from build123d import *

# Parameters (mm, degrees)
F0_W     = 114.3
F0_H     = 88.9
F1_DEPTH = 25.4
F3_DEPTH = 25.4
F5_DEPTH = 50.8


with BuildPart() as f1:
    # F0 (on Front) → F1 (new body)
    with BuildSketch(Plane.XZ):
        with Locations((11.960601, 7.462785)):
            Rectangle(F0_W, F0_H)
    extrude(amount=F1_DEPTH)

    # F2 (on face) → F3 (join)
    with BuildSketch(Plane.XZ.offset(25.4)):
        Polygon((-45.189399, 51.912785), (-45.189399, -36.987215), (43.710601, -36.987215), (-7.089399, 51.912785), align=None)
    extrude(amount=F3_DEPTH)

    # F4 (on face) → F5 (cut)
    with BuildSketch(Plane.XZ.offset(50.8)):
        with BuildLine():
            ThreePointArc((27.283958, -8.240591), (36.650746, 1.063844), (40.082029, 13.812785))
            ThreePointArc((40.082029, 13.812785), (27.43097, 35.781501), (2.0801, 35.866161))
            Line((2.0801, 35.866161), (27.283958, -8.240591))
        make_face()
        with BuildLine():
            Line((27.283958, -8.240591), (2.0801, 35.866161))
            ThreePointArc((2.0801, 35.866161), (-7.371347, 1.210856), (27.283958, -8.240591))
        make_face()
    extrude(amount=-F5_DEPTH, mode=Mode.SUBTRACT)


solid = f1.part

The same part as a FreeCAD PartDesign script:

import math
import FreeCAD as App
import Part
import Sketcher
Q = App.Units.Quantity


def add_polygon(sketch, points):
    """Adds a closed chain of lines whose ends are joined by coincident constraints."""
    first, n = sketch.GeometryCount, len(points)
    for a, b in zip(points, points[1:] + points[:1]):
        sketch.addGeometry(Part.LineSegment(App.Vector(*a, 0), App.Vector(*b, 0)), False)
    for i in range(n):
        sketch.addConstraint(Sketcher.Constraint("Coincident", first + i, 2, first + (i + 1) % n, 1))

doc = App.newDocument("Part")
body = doc.addObject("PartDesign::Body", "Body")

# Sketch on XZ plane
sketch1 = doc.addObject("Sketcher::SketchObject", "Sketch")
body.addObject(sketch1)
sketch1.AttachmentSupport = (doc.XZ_Plane, [""])
sketch1.MapMode = "FlatFace"
add_polygon(sketch1, [(-45, 52), (-45, -37), (69, -37), (69, 52)])  # lines 0-3
sketch1.addConstraint([
    Sketcher.Constraint("Vertical", 0),
    Sketcher.Constraint("Horizontal", 1),
    Sketcher.Constraint("Vertical", 2),
    Sketcher.Constraint("Horizontal", 3),
    Sketcher.Constraint("DistanceX", 1, 1, 1, 2, Q("4.5 in")),
    Sketcher.Constraint("DistanceY", 0, 2, 0, 1, Q("3.5 in")),
    Sketcher.Constraint("DistanceX", 0, 2, -1, 1, 45.189399),
    Sketcher.Constraint("DistanceY", 0, 2, -1, 1, 36.987215),
])
pad1 = doc.addObject("PartDesign::Pad", "Pad")
body.addObject(pad1)
pad1.Profile = sketch1
pad1.Length = Q("1 in")

# Sketch on XZ plane
sketch2 = doc.addObject("Sketcher::SketchObject", "Sketch001")
body.addObject(sketch2)
sketch2.AttachmentSupport = (doc.XZ_Plane, [""])
sketch2.MapMode = "FlatFace"
sketch2.AttachmentOffset = App.Placement(App.Vector(0, 0, 1 * 25.4), App.Rotation())
add_polygon(sketch2, [(-45, 52), (-45, -37), (44, -37), (-7, 52)])  # lines 0-3
sketch2.addConstraint([
    Sketcher.Constraint("Vertical", 0),
    Sketcher.Constraint("Horizontal", 1),
    Sketcher.Constraint("Horizontal", 3),
    Sketcher.Constraint("Equal", 1, 0),
    Sketcher.Constraint("DistanceX", 1, 1, 1, 2, Q("3.5 in")),
    Sketcher.Constraint("DistanceX", 3, 2, 3, 1, Q("1.5 in")),
    Sketcher.Constraint("DistanceX", 0, 2, -1, 1, 45.189399),
    Sketcher.Constraint("DistanceY", 0, 2, -1, 1, 36.987215),
])
pad2 = doc.addObject("PartDesign::Pad", "Pad001")
body.addObject(pad2)
pad2.Profile = sketch2
pad2.Length = Q("1 in")

# Sketch on XZ plane
sketch3 = doc.addObject("Sketcher::SketchObject", "Sketch002")
body.addObject(sketch3)
sketch3.AttachmentSupport = (doc.XZ_Plane, [""])
sketch3.MapMode = "FlatFace"
sketch3.AttachmentOffset = App.Placement(App.Vector(0, 0, 2 * 25.4), App.Rotation())
sketch3.addGeometry([
    Part.ArcOfCircle(Part.Circle(App.Vector(15, 14, 0), App.Vector(0, 0, 1), 25), math.radians(-60), math.radians(0)),
    Part.ArcOfCircle(Part.Circle(App.Vector(15, 14, 0), App.Vector(0, 0, 1), 25), math.radians(0), math.radians(120)),
    Part.ArcOfCircle(Part.Circle(App.Vector(15, 14, 0), App.Vector(0, 0, 1), 25), math.radians(120), math.radians(300)),
], False)
sketch3.addConstraint([
    Sketcher.Constraint("Tangent", 0, 2, 1, 1),
    Sketcher.Constraint("Tangent", 1, 2, 2, 1),
    Sketcher.Constraint("Tangent", 2, 2, 0, 1),
    Sketcher.Constraint("Horizontal", 2, 3, 0, 2),
    Sketcher.Constraint("Radius", 0, Q("0.9999999 in")),
    Sketcher.Constraint("DistanceX", -1, 1, 1, 2, 2.0801),
    Sketcher.Constraint("DistanceX", -1, 1, 0, 3, 14.682031),
    Sketcher.Constraint("DistanceY", -1, 1, 1, 2, 35.866161),
    Sketcher.Constraint("DistanceY", 2, 2, -1, 1, 8.240591),
])
pocket1 = doc.addObject("PartDesign::Pocket", "Pocket")
body.addObject(pocket1)
pocket1.Profile = sketch3
pocket1.Length = Q("2 in")

doc.recompute()
